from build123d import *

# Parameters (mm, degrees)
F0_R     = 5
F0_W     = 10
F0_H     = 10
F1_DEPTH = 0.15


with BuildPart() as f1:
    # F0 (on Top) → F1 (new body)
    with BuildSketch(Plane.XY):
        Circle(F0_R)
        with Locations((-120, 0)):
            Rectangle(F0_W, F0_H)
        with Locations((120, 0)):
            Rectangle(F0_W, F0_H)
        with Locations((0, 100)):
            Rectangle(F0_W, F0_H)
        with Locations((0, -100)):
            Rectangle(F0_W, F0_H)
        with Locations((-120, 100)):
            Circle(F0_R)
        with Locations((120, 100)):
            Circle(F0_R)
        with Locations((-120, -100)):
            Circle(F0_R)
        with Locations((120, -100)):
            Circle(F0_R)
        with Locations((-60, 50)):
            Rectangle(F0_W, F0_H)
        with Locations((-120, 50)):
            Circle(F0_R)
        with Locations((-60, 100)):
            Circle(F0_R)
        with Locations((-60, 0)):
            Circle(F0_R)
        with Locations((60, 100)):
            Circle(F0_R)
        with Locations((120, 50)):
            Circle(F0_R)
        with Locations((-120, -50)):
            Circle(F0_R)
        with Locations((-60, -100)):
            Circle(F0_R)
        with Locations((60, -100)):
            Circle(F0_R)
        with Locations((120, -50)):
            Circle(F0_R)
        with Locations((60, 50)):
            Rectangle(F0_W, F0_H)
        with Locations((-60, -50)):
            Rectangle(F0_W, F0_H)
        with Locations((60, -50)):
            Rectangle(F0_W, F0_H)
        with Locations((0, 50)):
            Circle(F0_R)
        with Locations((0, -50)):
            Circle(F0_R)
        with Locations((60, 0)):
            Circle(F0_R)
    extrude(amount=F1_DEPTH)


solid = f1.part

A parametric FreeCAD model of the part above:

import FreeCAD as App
import Part
import Sketcher
from FreeCAD import Vector
Q = App.Units.Quantity

doc = App.newDocument("Part")
body = doc.addObject("PartDesign::Body", "Body")
body.AllowCompound = True

# Sketch on XY plane
sketch1 = body.newObject("Sketcher::SketchObject", "Sketch")
sketch1.AttachmentSupport = (doc.getObject("XY_Plane"), [""])
sketch1.MapMode = "FlatFace"
sketch1.addGeometry([
    Part.Circle(Vector(0, 0, 0), Vector(0, 0, 1), 5),  # 0
    Part.LineSegment(Vector(-125, 5, 0), Vector(-125, -5, 0)),  # 1
    Part.LineSegment(Vector(-125, -5, 0), Vector(-115, -5, 0)),  # 2
    Part.LineSegment(Vector(-115, -5, 0), Vector(-115, 5, 0)),  # 3
    Part.LineSegment(Vector(-115, 5, 0), Vector(-125, 5, 0)),  # 4
    Part.LineSegment(Vector(115, 5, 0), Vector(115, -5, 0)),  # 5
    Part.LineSegment(Vector(115, -5, 0), Vector(125, -5, 0)),  # 6
    Part.LineSegment(Vector(125, -5, 0), Vector(125, 5, 0)),  # 7
    Part.LineSegment(Vector(125, 5, 0), Vector(115, 5, 0)),  # 8
    Part.LineSegment(Vector(-5, 105, 0), Vector(-5, 95, 0)),  # 9
    Part.LineSegment(Vector(-5, 95, 0), Vector(5, 95, 0)),  # 10
    Part.LineSegment(Vector(5, 95, 0), Vector(5, 105, 0)),  # 11
    Part.LineSegment(Vector(5, 105, 0), Vector(-5, 105, 0)),  # 12
    Part.LineSegment(Vector(-5, -95, 0), Vector(-5, -105, 0)),  # 13
    Part.LineSegment(Vector(-5, -105, 0), Vector(5, -105, 0)),  # 14
    Part.LineSegment(Vector(5, -105, 0), Vector(5, -95, 0)),  # 15
    Part.LineSegment(Vector(5, -95, 0), Vector(-5, -95, 0)),  # 16
    Part.Circle(Vector(-120, 100, 0), Vector(0, 0, 1), 5),  # 17
    Part.Circle(Vector(120, 100, 0), Vector(0, 0, 1), 5),  # 18
    Part.Circle(Vector(-120, -100, 0), Vector(0, 0, 1), 5),  # 19
    Part.Circle(Vector(120, -100, 0), Vector(0, 0, 1), 5),  # 20
    Part.LineSegment(Vector(-65, 55, 0), Vector(-65, 45, 0)),  # 21
    Part.LineSegment(Vector(-65, 45, 0), Vector(-55, 45, 0)),  # 22
    Part.LineSegment(Vector(-55, 45, 0), Vector(-55, 55, 0)),  # 23
    Part.LineSegment(Vector(-55, 55, 0), Vector(-65, 55, 0)),  # 24
    Part.Circle(Vector(-120, 50, 0), Vector(0, 0, 1), 5),  # 25
    Part.Circle(Vector(-60, 100, 0), Vector(0, 0, 1), 5),  # 26
    Part.Circle(Vector(-60, 0, 0), Vector(0, 0, 1), 5),  # 27
    Part.Circle(Vector(60, 100, 0), Vector(0, 0, 1), 5),  # 28
    Part.Circle(Vector(120, 50, 0), Vector(0, 0, 1), 5),  # 29
    Part.Circle(Vector(-120, -50, 0), Vector(0, 0, 1), 5),  # 30
    Part.Circle(Vector(-60, -100, 0), Vector(0, 0, 1), 5),  # 31
    Part.Circle(Vector(60, -100, 0), Vector(0, 0, 1), 5),  # 32
    Part.Circle(Vector(120, -50, 0), Vector(0, 0, 1), 5),  # 33
    Part.LineSegment(Vector(55, 55, 0), Vector(55, 45, 0)),  # 34
    Part.LineSegment(Vector(55, 45, 0), Vector(65, 45, 0)),  # 35
    Part.LineSegment(Vector(65, 45, 0), Vector(65, 55, 0)),  # 36
    Part.LineSegment(Vector(65, 55, 0), Vector(55, 55, 0)),  # 37
    Part.LineSegment(Vector(-65, -45, 0), Vector(-65, -55, 0)),  # 38
    Part.LineSegment(Vector(-65, -55, 0), Vector(-55, -55, 0)),  # 39
    Part.LineSegment(Vector(-55, -55, 0), Vector(-55, -45, 0)),  # 40
    Part.LineSegment(Vector(-55, -45, 0), Vector(-65, -45, 0)),  # 41
    Part.LineSegment(Vector(55, -45, 0), Vector(55, -55, 0)),  # 42
    Part.LineSegment(Vector(55, -55, 0), Vector(65, -55, 0)),  # 43
    Part.LineSegment(Vector(65, -55, 0), Vector(65, -45, 0)),  # 44
    Part.LineSegment(Vector(65, -45, 0), Vector(55, -45, 0)),  # 45
    Part.Circle(Vector(0, 50, 0), Vector(0, 0, 1), 5),  # 46
    Part.Circle(Vector(0, -50, 0), Vector(0, 0, 1), 5),  # 47
    Part.Circle(Vector(60, 0, 0), Vector(0, 0, 1), 5),  # 48
], False)
sketch1.addConstraint([
    Sketcher.Constraint("Coincident", 1, 2, 2, 1),
    Sketcher.Constraint("Coincident", 2, 2, 3, 1),
    Sketcher.Constraint("Coincident", 3, 2, 4, 1),
    Sketcher.Constraint("Coincident", 4, 2, 1, 1),
    Sketcher.Constraint("Coincident", 5, 2, 6, 1),
    Sketcher.Constraint("Coincident", 6, 2, 7, 1),
    Sketcher.Constraint("Coincident", 7, 2, 8, 1),
    Sketcher.Constraint("Coincident", 8, 2, 5, 1),
    Sketcher.Constraint("Coincident", 9, 2, 10, 1),
    Sketcher.Constraint("Coincident", 10, 2, 11, 1),
    Sketcher.Constraint("Coincident", 11, 2, 12, 1),
    Sketcher.Constraint("Coincident", 12, 2, 9, 1),
    Sketcher.Constraint("Coincident", 13, 2, 14, 1),
    Sketcher.Constraint("Coincident", 14, 2, 15, 1),
    Sketcher.Constraint("Coincident", 15, 2, 16, 1),
    Sketcher.Constraint("Coincident", 16, 2, 13, 1),
    Sketcher.Constraint("Coincident", 21, 2, 22, 1),
    Sketcher.Constraint("Coincident", 22, 2, 23, 1),
    Sketcher.Constraint("Coincident", 23, 2, 24, 1),
    Sketcher.Constraint("Coincident", 24, 2, 21, 1),
    Sketcher.Constraint("Coincident", 34, 2, 35, 1),
    Sketcher.Constraint("Coincident", 35, 2, 36, 1),
    Sketcher.Constraint("Coincident", 36, 2, 37, 1),
    Sketcher.Constraint("Coincident", 37, 2, 34, 1),
    Sketcher.Constraint("Coincident", 38, 2, 39, 1),
    Sketcher.Constraint("Coincident", 39, 2, 40, 1),
    Sketcher.Constraint("Coincident", 40, 2, 41, 1),
    Sketcher.Constraint("Coincident", 41, 2, 38, 1),
    Sketcher.Constraint("Coincident", 42, 2, 43, 1),
    Sketcher.Constraint("Coincident", 43, 2, 44, 1),
    Sketcher.Constraint("Coincident", 44, 2, 45, 1),
    Sketcher.Constraint("Coincident", 45, 2, 42, 1),
    Sketcher.Constraint("Vertical", 1),
    Sketcher.Constraint("Horizontal", 2),
    Sketcher.Constraint("Vertical", 3),
    Sketcher.Constraint("Horizontal", 4),
    Sketcher.Constraint("Vertical", 5),
    Sketcher.Constraint("Horizontal", 6),
    Sketcher.Constraint("Vertical", 7),
    Sketcher.Constraint("Horizontal", 8),
    Sketcher.Constraint("Vertical", 9),
    Sketcher.Constraint("Horizontal", 10),
    Sketcher.Constraint("Vertical", 11),
    Sketcher.Constraint("Horizontal", 12),
    Sketcher.Constraint("Vertical", 13),
    Sketcher.Constraint("Horizontal", 14),
    Sketcher.Constraint("Vertical", 15),
    Sketcher.Constraint("Horizontal", 16),
    Sketcher.Constraint("Vertical", 21),
    Sketcher.Constraint("Horizontal", 22),
    Sketcher.Constraint("Vertical", 23),
    Sketcher.Constraint("Horizontal", 24),
    Sketcher.Constraint("Vertical", 34),
    Sketcher.Constraint("Horizontal", 35),
    Sketcher.Constraint("Vertical", 36),
    Sketcher.Constraint("Horizontal", 37),
    Sketcher.Constraint("Vertical", 38),
    Sketcher.Constraint("Horizontal", 39),
    Sketcher.Constraint("Vertical", 40),
    Sketcher.Constraint("Horizontal", 41),
    Sketcher.Constraint("Vertical", 42),
    Sketcher.Constraint("Horizontal", 43),
    Sketcher.Constraint("Vertical", 44),
    Sketcher.Constraint("Horizontal", 45),
    Sketcher.Constraint("Coincident", 0, 3, -1, 1),
    Sketcher.Constraint("Equal", 0, 17),
    Sketcher.Constraint("Equal", 17, 18),
    Sketcher.Constraint("Equal", 18, 19),
    Sketcher.Constraint("Equal", 19, 20),
    Sketcher.Constraint("Equal", 20, 25),
    Sketcher.Constraint("Equal", 25, 26),
    Sketcher.Constraint("Equal", 26, 27),
    Sketcher.Constraint("Equal", 27, 28),
    Sketcher.Constraint("Equal", 28, 29),
    Sketcher.Constraint("Equal", 29, 30),
    Sketcher.Constraint("Equal", 30, 31),
    Sketcher.Constraint("Equal", 31, 32),
    Sketcher.Constraint("Equal", 32, 33),
    Sketcher.Constraint("Equal", 33, 46),
    Sketcher.Constraint("Equal", 46, 47),
    Sketcher.Constraint("Equal", 47, 48),
    Sketcher.Constraint("Symmetric", 18, 3, 19, 3, -1, 1),
    Sketcher.Constraint("Symmetric", 17, 3, 20, 3, -1, 1),
    Sketcher.Constraint("Symmetric", 29, 3, 30, 3, -1, 1),
    Sketcher.Constraint("Symmetric", 28, 3, 31, 3, -1, 1),
    Sketcher.Constraint("Symmetric", 26, 3, 32, 3, -1, 1),
    Sketcher.Constraint("Symmetric", 25, 3, 33, 3, -1, 1),
    Sketcher.Constraint("Symmetric", 46, 3, 47, 3, -1, 1),
    Sketcher.Constraint("Symmetric", 27, 3, 48, 3, -1, 1),
    Sketcher.Constraint("Symmetric", 3, 2, 5, 2, -1, 1),
    Sketcher.Constraint("Symmetric", 1, 2, 7, 2, -1, 1),
    Sketcher.Constraint("Symmetric", 11, 2, 13, 2, -1, 1),
    Sketcher.Constraint("Symmetric", 9, 2, 15, 2, -1, 1),
    Sketcher.Constraint("Symmetric", 36, 2, 38, 2, -1, 1),
    Sketcher.Constraint("Symmetric", 34, 2, 40, 2, -1, 1),
    Sketcher.Constraint("Symmetric", 23, 2, 42, 2, -1, 1),
    Sketcher.Constraint("Symmetric", 21, 2, 44, 2, -1, 1),
    Sketcher.Constraint("Symmetric", 17, 3, 18, 3, -2),
    Sketcher.Constraint("Symmetric", 26, 3, 28, 3, -2),
    Sketcher.Constraint("Symmetric", 25, 3, 29, 3, -2),
    Sketcher.Constraint("Symmetric", 22, 2, 34, 2, -2),
    Sketcher.Constraint("Symmetric", 24, 2, 36, 2, -2),
    Sketcher.Constraint("PointOnObject", 27, 3, -1),
    Sketcher.Constraint("PointOnObject", 46, 3, -2),
    Sketcher.Constraint("Horizontal", 18, 3, 26, 3),
    Sketcher.Constraint("Horizontal", 29, 3, 46, 3),
    Sketcher.Constraint("Horizontal", 2, 2, 5, 2),
    Sketcher.Constraint("Vertical", 19, 3, 25, 3),
    Sketcher.Constraint("Vertical", 26, 3, 27, 3),
    Sketcher.Constraint("Vertical", 12, 2, 13, 2),
    Sketcher.Constraint("Equal", 8, 10),
    Sketcher.Constraint("Equal", 16, 22),
    Sketcher.Constraint("Equal", 45, 1),
    Sketcher.Constraint("Equal", 7, 9),
    Sketcher.Constraint("Equal", 15, 21),
    Sketcher.Constraint("Diameter", 0, Q("10 mm")),
    Sketcher.Constraint("DistanceX", 2, 1, 2, 2, Q("10 mm")),
    Sketcher.Constraint("DistanceX", 17, 3, -1, 1, Q("120 mm")),
    Sketcher.Constraint("DistanceY", -1, 1, 17, 3, Q("100 mm")),
    Sketcher.Constraint("DistanceY", -1, 1, 25, 3, Q("50 mm")),
    Sketcher.Constraint("DistanceX", 26, 3, -1, 1, Q("60 mm")),
    Sketcher.Constraint("DistanceX", 1, 2, -1, 1, Q("125 mm")),
    Sketcher.Constraint("DistanceY", -1, 1, 9, 2, Q("95 mm")),
    Sketcher.Constraint("DistanceX", 21, 2, -1, 1, Q("65 mm")),
    Sketcher.Constraint("DistanceY", -1, 1, 21, 2, Q("45 mm")),
])
pad1 = body.newObject("PartDesign::Pad", "Pad")
pad1.Profile = sketch1
pad1.Length = 0.15

doc.recompute()
